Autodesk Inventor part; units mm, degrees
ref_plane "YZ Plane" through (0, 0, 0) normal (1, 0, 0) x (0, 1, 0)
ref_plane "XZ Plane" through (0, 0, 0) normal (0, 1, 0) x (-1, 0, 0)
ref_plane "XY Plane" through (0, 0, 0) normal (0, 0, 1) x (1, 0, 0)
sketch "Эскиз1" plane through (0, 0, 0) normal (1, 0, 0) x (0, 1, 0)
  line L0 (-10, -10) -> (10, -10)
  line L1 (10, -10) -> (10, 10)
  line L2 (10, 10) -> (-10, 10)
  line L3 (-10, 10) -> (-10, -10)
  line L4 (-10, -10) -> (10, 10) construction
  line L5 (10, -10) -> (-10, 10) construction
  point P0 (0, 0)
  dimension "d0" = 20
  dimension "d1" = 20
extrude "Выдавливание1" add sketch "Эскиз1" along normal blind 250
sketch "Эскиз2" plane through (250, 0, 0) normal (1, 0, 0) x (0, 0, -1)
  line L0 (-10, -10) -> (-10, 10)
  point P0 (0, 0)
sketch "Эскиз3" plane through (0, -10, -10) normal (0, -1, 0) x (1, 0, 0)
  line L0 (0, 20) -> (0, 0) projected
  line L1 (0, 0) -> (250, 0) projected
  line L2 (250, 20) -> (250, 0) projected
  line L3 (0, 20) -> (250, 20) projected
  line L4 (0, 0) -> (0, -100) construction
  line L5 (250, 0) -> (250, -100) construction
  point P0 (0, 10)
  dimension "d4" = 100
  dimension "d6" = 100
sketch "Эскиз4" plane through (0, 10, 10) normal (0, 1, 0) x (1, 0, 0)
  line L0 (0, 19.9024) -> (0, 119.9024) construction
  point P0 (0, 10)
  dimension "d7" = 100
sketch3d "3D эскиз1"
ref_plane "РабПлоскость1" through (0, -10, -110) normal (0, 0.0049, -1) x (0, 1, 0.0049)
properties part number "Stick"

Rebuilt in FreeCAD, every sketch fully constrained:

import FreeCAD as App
import Part
import Sketcher

V = App.Vector
Q = App.Units.Quantity

doc = App.newDocument("Part")
body = doc.addObject("PartDesign::Body", "Body")

# Sketch on YZ plane
sketch1 = doc.addObject("Sketcher::SketchObject", "Sketch")
body.addObject(sketch1)
sketch1.AttachmentSupport = (doc.YZ_Plane, [""])
sketch1.MapMode = "FlatFace"
sketch1.addGeometry([
    Part.LineSegment(V(-10, 10, 0), V(-10, -10, 0)),
    Part.LineSegment(V(-10, -10, 0), V(10, -10, 0)),
    Part.LineSegment(V(10, -10, 0), V(10, 10, 0)),
    Part.LineSegment(V(10, 10, 0), V(-10, 10, 0)),
], False)
sketch1.addConstraint([
    Sketcher.Constraint("Coincident", 0, 2, 1, 1),
    Sketcher.Constraint("Coincident", 1, 2, 2, 1),
    Sketcher.Constraint("Coincident", 2, 2, 3, 1),
    Sketcher.Constraint("Coincident", 3, 2, 0, 1),
    Sketcher.Constraint("Vertical", 0),
    Sketcher.Constraint("Horizontal", 1),
    Sketcher.Constraint("Vertical", 2),
    Sketcher.Constraint("Horizontal", 3),
    Sketcher.Constraint("Symmetric", 0, 2, 2, 2, -1, 1),
    Sketcher.Constraint("Equal", 3, 0),
    Sketcher.Constraint("DistanceX", 1, 1, 1, 2, Q("20 mm")),
])
pad1 = doc.addObject("PartDesign::Pad", "Pad")
body.addObject(pad1)
pad1.Profile = sketch1
pad1.Length = 250

doc.recompute()
